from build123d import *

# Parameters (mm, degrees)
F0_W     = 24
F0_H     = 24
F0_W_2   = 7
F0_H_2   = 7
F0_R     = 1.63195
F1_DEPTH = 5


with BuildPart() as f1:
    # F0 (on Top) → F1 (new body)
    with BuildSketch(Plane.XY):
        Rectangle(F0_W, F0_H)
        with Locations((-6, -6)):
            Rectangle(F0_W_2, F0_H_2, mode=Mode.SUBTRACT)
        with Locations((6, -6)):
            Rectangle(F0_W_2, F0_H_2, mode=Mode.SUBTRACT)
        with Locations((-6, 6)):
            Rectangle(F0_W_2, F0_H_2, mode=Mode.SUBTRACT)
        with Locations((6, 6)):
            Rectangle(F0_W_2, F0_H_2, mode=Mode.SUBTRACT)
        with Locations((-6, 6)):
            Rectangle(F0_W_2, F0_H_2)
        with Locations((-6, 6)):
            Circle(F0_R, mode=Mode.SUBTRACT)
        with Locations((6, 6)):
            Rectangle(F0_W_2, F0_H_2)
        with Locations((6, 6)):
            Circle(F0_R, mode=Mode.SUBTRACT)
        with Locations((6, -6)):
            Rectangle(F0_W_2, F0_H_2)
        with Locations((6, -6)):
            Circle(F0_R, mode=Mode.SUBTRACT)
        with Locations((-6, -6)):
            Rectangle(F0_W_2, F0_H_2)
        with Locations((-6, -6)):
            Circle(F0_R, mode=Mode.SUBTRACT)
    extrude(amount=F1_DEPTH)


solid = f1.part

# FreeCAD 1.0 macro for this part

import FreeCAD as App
import Part
import Sketcher
from FreeCAD import Vector
Q = App.Units.Quantity

doc = App.newDocument("Part")
body = doc.addObject("PartDesign::Body", "Body")

sketch1 = body.newObject("Sketcher::SketchObject", "Sketch")
sketch1.AttachmentSupport = (doc.getObject("XY_Plane"), [""])
sketch1.MapMode = "FlatFace"
sketch1.addGeometry(Part.LineSegment(Vector(-12, 12, 0), Vector(-12, -12, 0)), False)
sketch1.addGeometry(Part.LineSegment(Vector(-12, -12, 0), Vector(12, -12, 0)), False)
sketch1.addGeometry(Part.LineSegment(Vector(12, -12, 0), Vector(12, 12, 0)), False)
sketch1.addGeometry(Part.LineSegment(Vector(12, 12, 0), Vector(-12, 12, 0)), False)
sketch1.addGeometry(Part.Circle(Vector(-6, -6, 0), Vector(0, 0, 1), 1.63195), False)
sketch1.addGeometry(Part.Circle(Vector(6, -6, 0), Vector(0, 0, 1), 1.63195), False)
sketch1.addGeometry(Part.Circle(Vector(-6, 6, 0), Vector(0, 0, 1), 1.63195), False)
sketch1.addGeometry(Part.Circle(Vector(6, 6, 0), Vector(0, 0, 1), 1.63195), False)
sketch1.addConstraint(Sketcher.Constraint("Coincident", 0, 2, 1, 1))
sketch1.addConstraint(Sketcher.Constraint("Coincident", 1, 2, 2, 1))
sketch1.addConstraint(Sketcher.Constraint("Coincident", 2, 2, 3, 1))
sketch1.addConstraint(Sketcher.Constraint("Coincident", 3, 2, 0, 1))
sketch1.addConstraint(Sketcher.Constraint("Vertical", 0))
sketch1.addConstraint(Sketcher.Constraint("Horizontal", 1))
sketch1.addConstraint(Sketcher.Constraint("Vertical", 2))
sketch1.addConstraint(Sketcher.Constraint("Horizontal", 3))
sketch1.addConstraint(Sketcher.Constraint("Equal", 4, 5))
sketch1.addConstraint(Sketcher.Constraint("Equal", 5, 6))
sketch1.addConstraint(Sketcher.Constraint("Equal", 6, 7))
sketch1.addConstraint(Sketcher.Constraint("Symmetric", 5, 3, 6, 3, -1, 1))
sketch1.addConstraint(Sketcher.Constraint("Symmetric", 4, 3, 7, 3, -1, 1))
sketch1.addConstraint(Sketcher.Constraint("Symmetric", 0, 2, 2, 2, -1, 1))
sketch1.addConstraint(Sketcher.Constraint("Symmetric", 4, 3, 5, 3, -2))
sketch1.addConstraint(Sketcher.Constraint("Equal", 3, 0))
sketch1.addConstraint(Sketcher.Constraint("DistanceX", 1, 1, 1, 2, Q("24 mm")))
sketch1.addConstraint(Sketcher.Constraint("DistanceX", 4, 3, -1, 1, Q("6 mm")))
sketch1.addConstraint(Sketcher.Constraint("DistanceY", 4, 3, -1, 1, Q("6 mm")))
sketch1.addConstraint(Sketcher.Constraint("Diameter", 4, Q("3.2639 mm")))
pad1 = body.newObject("PartDesign::Pad", "Pad")
pad1.Profile = sketch1
pad1.Length = 5

doc.recompute()
